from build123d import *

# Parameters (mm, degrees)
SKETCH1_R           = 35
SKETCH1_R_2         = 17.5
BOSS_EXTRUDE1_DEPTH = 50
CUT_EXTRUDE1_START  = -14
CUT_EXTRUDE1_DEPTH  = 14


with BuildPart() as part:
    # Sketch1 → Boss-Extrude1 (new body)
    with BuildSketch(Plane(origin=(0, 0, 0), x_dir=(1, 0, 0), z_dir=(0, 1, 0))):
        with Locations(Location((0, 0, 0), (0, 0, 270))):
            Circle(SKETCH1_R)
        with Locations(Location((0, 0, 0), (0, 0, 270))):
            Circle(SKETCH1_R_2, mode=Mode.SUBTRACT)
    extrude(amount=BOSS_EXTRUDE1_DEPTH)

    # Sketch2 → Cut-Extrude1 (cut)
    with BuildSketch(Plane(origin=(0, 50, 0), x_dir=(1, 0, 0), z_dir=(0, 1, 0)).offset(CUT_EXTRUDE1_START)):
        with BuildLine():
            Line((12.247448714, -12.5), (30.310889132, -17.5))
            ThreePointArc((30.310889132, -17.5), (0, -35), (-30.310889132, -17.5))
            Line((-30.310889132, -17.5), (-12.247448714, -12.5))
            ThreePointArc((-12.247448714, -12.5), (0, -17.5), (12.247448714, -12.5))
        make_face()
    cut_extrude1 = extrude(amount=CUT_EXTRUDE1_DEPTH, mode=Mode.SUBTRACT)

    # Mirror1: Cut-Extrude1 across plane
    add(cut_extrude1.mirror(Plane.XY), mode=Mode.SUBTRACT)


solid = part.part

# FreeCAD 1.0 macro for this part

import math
import FreeCAD as App
import Part
import Sketcher

V = App.Vector

doc = App.newDocument("Part")
body = doc.addObject("PartDesign::Body", "Body")

# Sketch on XZ plane
sketch1 = body.newObject("Sketcher::SketchObject", "Sketch")
sketch1.AttachmentSupport = (doc.getObject("XZ_Plane"), [""])
sketch1.MapMode = "FlatFace"
sketch1.addGeometry([
    Part.Circle(V(0, 0, 0), V(0, 0, 1), 35),
    Part.Circle(V(0, 0, 0), V(0, 0, 1), 17.5),
], False)
sketch1.addConstraint([
    Sketcher.Constraint("Coincident", 0, 3, -1, 1),
    Sketcher.Constraint("Coincident", 1, 3, -1, 1),
    Sketcher.Constraint("Diameter", 0, 70.0),
    Sketcher.Constraint("Diameter", 1, 35.0),
])
pad1 = body.newObject("PartDesign::Pad", "Pad")
pad1.Profile = sketch1
pad1.Length = 50
pad1.Reversed = True

# Sketch on XZ plane
sketch2 = body.newObject("Sketcher::SketchObject", "Sketch001")
sketch2.AttachmentSupport = (doc.getObject("XZ_Plane"), [""])
sketch2.MapMode = "FlatFace"
sketch2.AttachmentOffset = App.Placement(V(0, 0, -36), App.Rotation())
sketch2.addGeometry([
    Part.LineSegment(V(30.310889, 17.5, 0), V(12.247449, 12.5, 0)),
    Part.ArcOfCircle(Part.Circle(V(0, 0, 0), V(0, 0, 1), 17.5), math.radians(45.584691), math.radians(134.415309)),
    Part.LineSegment(V(-12.247449, 12.5, 0), V(-30.310889, 17.5, 0)),
    Part.ArcOfCircle(Part.Circle(V(0, 0, 0), V(0, 0, 1), 35), math.radians(30), math.radians(150)),
], False)
sketch2.addConstraint([
    Sketcher.Constraint("Coincident", 0, 2, 1, 1),
    Sketcher.Constraint("Coincident", 1, 2, 2, 1),
    Sketcher.Constraint("Coincident", 2, 2, 3, 2),
    Sketcher.Constraint("Coincident", 3, 1, 0, 1),
    Sketcher.Constraint("Coincident", 1, 3, -1, 1),
    Sketcher.Constraint("Coincident", 3, 3, -1, 1),
    Sketcher.Constraint("Horizontal", 0, 2, 1, 2),
    Sketcher.Constraint("Horizontal", 2, 2, 3, 1),
    Sketcher.Constraint("Radius", 3, 35.0),
    Sketcher.Constraint("Radius", 1, 17.5),
    Sketcher.Constraint("DistanceY", 1, 2, 2, 2, 5.0),
    Sketcher.Constraint("DistanceY", -1, 1, 0, 2, 12.5),
])
pocket1 = body.newObject("PartDesign::Pocket", "Pocket")
pocket1.Profile = sketch2
pocket1.Length = 14
doc.recompute()

mirrored = body.newObject("PartDesign::Mirrored", "Mirrored")
mirrored.Originals = [pocket1]
mirrored.MirrorPlane = (doc.getObject("XY_Plane"), [""])
body.Tip = mirrored

doc.recompute()
